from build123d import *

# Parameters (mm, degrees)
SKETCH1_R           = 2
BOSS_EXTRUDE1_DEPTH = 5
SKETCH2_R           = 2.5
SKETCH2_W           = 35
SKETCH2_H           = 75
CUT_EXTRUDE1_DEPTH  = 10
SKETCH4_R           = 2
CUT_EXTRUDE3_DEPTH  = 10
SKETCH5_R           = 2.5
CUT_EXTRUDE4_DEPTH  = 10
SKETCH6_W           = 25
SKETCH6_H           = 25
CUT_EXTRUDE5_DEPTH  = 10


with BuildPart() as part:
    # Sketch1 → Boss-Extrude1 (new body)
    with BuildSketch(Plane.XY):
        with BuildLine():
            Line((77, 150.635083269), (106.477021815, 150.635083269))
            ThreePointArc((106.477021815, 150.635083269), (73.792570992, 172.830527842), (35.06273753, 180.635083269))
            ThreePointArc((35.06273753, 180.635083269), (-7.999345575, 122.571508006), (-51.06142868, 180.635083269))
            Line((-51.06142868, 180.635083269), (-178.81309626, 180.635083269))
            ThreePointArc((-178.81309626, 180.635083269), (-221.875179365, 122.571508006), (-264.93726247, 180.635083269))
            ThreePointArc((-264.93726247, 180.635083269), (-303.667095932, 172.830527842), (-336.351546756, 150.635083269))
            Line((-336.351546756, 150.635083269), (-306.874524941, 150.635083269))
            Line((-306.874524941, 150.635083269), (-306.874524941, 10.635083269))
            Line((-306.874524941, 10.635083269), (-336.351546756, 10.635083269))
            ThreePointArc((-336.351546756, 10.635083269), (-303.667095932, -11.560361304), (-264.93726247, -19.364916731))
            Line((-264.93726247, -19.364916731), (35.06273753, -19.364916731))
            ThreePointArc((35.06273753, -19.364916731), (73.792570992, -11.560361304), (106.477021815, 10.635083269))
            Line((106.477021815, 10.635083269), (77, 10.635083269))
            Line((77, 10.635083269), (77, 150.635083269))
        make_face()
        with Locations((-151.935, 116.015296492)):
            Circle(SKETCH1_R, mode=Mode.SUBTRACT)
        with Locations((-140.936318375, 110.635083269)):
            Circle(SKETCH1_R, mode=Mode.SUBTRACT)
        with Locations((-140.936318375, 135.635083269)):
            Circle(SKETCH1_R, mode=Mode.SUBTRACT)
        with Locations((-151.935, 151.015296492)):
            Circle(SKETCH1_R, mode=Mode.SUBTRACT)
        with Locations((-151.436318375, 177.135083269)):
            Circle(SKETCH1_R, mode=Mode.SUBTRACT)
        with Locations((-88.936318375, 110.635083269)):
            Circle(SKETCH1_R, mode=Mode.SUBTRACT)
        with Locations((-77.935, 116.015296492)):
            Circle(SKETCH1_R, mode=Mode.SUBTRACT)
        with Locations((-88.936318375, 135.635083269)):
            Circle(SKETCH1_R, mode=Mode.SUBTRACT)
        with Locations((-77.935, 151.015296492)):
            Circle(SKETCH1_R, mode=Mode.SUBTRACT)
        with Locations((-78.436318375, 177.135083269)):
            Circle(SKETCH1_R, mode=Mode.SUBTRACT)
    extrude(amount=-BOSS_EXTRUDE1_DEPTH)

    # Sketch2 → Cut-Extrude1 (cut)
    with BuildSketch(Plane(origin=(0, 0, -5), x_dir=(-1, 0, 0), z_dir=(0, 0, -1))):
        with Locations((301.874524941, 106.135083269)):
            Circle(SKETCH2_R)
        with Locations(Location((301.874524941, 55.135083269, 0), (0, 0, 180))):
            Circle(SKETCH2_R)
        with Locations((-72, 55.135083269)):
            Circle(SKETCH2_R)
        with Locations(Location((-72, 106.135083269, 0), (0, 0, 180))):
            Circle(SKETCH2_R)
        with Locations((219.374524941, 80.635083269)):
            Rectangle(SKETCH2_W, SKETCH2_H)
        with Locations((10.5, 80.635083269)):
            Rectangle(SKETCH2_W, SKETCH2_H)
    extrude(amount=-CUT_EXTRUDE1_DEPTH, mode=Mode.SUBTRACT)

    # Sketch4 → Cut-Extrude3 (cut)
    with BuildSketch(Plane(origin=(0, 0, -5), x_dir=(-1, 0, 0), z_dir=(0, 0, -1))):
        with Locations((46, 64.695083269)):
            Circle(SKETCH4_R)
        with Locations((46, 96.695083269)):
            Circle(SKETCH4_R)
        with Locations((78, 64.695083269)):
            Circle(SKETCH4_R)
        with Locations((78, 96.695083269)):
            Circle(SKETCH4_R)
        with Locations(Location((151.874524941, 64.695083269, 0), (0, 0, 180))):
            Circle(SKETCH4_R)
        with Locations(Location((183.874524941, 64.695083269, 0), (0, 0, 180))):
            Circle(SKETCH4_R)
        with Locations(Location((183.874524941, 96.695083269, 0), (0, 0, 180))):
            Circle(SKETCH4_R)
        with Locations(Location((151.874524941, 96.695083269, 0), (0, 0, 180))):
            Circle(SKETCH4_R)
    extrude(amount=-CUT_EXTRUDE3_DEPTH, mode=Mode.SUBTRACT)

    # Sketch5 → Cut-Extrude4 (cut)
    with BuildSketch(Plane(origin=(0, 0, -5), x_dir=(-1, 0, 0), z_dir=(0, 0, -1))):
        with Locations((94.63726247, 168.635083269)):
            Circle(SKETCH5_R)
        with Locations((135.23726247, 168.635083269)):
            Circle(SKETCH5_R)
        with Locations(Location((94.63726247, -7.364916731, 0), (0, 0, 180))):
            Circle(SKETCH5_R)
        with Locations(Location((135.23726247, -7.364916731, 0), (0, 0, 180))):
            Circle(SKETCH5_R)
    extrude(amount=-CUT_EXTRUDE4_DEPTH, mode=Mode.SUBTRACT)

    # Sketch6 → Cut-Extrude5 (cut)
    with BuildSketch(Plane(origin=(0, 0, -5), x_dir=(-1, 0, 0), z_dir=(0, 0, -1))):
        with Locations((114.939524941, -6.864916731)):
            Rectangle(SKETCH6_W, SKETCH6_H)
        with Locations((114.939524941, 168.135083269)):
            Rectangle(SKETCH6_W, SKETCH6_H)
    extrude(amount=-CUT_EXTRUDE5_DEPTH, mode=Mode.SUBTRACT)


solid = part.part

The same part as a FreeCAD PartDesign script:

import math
import FreeCAD as App
import Part
import Sketcher
from FreeCAD import Vector

doc = App.newDocument("Part")
body = doc.addObject("PartDesign::Body", "Body")

# Sketch on XY plane
sketch1 = body.newObject("Sketcher::SketchObject", "Sketch")
sketch1.AttachmentSupport = (doc.getObject("XY_Plane"), [""])
sketch1.MapMode = "FlatFace"
sketch1.addGeometry(Part.LineSegment(Vector(77, 150.635083, 0), Vector(106.477022, 150.635083, 0)), False)
sketch1.addGeometry(Part.ArcOfCircle(Part.Circle(Vector(35.062738, 80.635083, 0), Vector(0, 0, 1), 100), math.radians(44.427004), math.radians(90)), False)
sketch1.addGeometry(Part.ArcOfCircle(Part.Circle(Vector(-7.999346, 167.571508, 0), Vector(0, 0, 1), 45), math.radians(163.123982), math.radians(376.876018)), False)
sketch1.addGeometry(Part.LineSegment(Vector(-51.061429, 180.635083, 0), Vector(-178.813096, 180.635083, 0)), False)
sketch1.addGeometry(Part.ArcOfCircle(Part.Circle(Vector(-221.875179, 167.571508, 0), Vector(0, 0, 1), 45), math.radians(163.123982), math.radians(376.876018)), False)
sketch1.addGeometry(Part.ArcOfCircle(Part.Circle(Vector(-264.937262, 80.635083, 0), Vector(0, 0, 1), 100), math.radians(90), math.radians(135.572996)), False)
sketch1.addGeometry(Part.LineSegment(Vector(-336.351547, 150.635083, 0), Vector(-306.874525, 150.635083, 0)), False)
sketch1.addGeometry(Part.LineSegment(Vector(-306.874525, 150.635083, 0), Vector(-306.874525, 10.635083, 0)), False)
sketch1.addGeometry(Part.LineSegment(Vector(-306.874525, 10.635083, 0), Vector(-336.351547, 10.635083, 0)), False)
sketch1.addGeometry(Part.ArcOfCircle(Part.Circle(Vector(-264.937262, 80.635083, 0), Vector(0, 0, 1), 100), math.radians(-135.572996), math.radians(-90)), False)
sketch1.addGeometry(Part.LineSegment(Vector(-264.937262, -19.364917, 0), Vector(35.062738, -19.364917, 0)), False)
sketch1.addGeometry(Part.ArcOfCircle(Part.Circle(Vector(35.062738, 80.635083, 0), Vector(0, 0, 1), 100), math.radians(-90), math.radians(-44.427004)), False)
sketch1.addGeometry(Part.LineSegment(Vector(106.477022, 10.635083, 0), Vector(77, 10.635083, 0)), False)
sketch1.addGeometry(Part.LineSegment(Vector(77, 10.635083, 0), Vector(77, 150.635083, 0)), False)
sketch1.addGeometry(Part.Circle(Vector(-151.935, 116.015296, 0), Vector(0, 0, 1), 2), False)
sketch1.addGeometry(Part.Circle(Vector(-140.936318, 110.635083, 0), Vector(0, 0, 1), 2), False)
sketch1.addGeometry(Part.Circle(Vector(-140.936318, 135.635083, 0), Vector(0, 0, 1), 2), False)
sketch1.addGeometry(Part.Circle(Vector(-88.936318, 110.635083, 0), Vector(0, 0, 1), 2), False)
sketch1.addGeometry(Part.Circle(Vector(-77.935, 116.015296, 0), Vector(0, 0, 1), 2), False)
sketch1.addGeometry(Part.Circle(Vector(-88.936318, 135.635083, 0), Vector(0, 0, 1), 2), False)
sketch1.addGeometry(Part.Circle(Vector(-151.935, 151.015296, 0), Vector(0, 0, 1), 2), False)
sketch1.addGeometry(Part.Circle(Vector(-151.436318, 177.135083, 0), Vector(0, 0, 1), 2), False)
sketch1.addGeometry(Part.Circle(Vector(-77.935, 151.015296, 0), Vector(0, 0, 1), 2), False)
sketch1.addGeometry(Part.Circle(Vector(-78.436318, 177.135083, 0), Vector(0, 0, 1), 2), False)
sketch1.addConstraint(Sketcher.Constraint("Coincident", 0, 2, 1, 1))
sketch1.addConstraint(Sketcher.Constraint("Coincident", 1, 2, 2, 2))
sketch1.addConstraint(Sketcher.Constraint("Coincident", 2, 1, 3, 1))
sketch1.addConstraint(Sketcher.Constraint("Coincident", 3, 2, 4, 2))
sketch1.addConstraint(Sketcher.Constraint("Coincident", 4, 1, 5, 1))
sketch1.addConstraint(Sketcher.Constraint("Coincident", 5, 2, 6, 1))
sketch1.addConstraint(Sketcher.Constraint("Coincident", 6, 2, 7, 1))
sketch1.addConstraint(Sketcher.Constraint("Coincident", 7, 2, 8, 1))
sketch1.addConstraint(Sketcher.Constraint("Coincident", 8, 2, 9, 1))
sketch1.addConstraint(Sketcher.Constraint("Tangent", 9, 2, 10, 1))
sketch1.addConstraint(Sketcher.Constraint("Tangent", 10, 2, 11, 1))
sketch1.addConstraint(Sketcher.Constraint("Coincident", 11, 2, 12, 1))
sketch1.addConstraint(Sketcher.Constraint("Coincident", 12, 2, 13, 1))
sketch1.addConstraint(Sketcher.Constraint("Coincident", 13, 2, 0, 1))
sketch1.addConstraint(Sketcher.Constraint("Horizontal", 0))
sketch1.addConstraint(Sketcher.Constraint("Horizontal", 3))
sketch1.addConstraint(Sketcher.Constraint("Horizontal", 6))
sketch1.addConstraint(Sketcher.Constraint("Vertical", 7))
sketch1.addConstraint(Sketcher.Constraint("Horizontal", 8))
sketch1.addConstraint(Sketcher.Constraint("Horizontal", 10))
sketch1.addConstraint(Sketcher.Constraint("Horizontal", 12))
sketch1.addConstraint(Sketcher.Constraint("Vertical", 13))
sketch1.addConstraint(Sketcher.Constraint("Coincident", 9, 3, 5, 3))
sketch1.addConstraint(Sketcher.Constraint("Coincident", 11, 3, 1, 3))
sketch1.addConstraint(Sketcher.Constraint("Equal", 2, 4))
sketch1.addConstraint(Sketcher.Constraint("Equal", 1, 5))
sketch1.addConstraint(Sketcher.Constraint("Equal", 5, 9))
sketch1.addConstraint(Sketcher.Constraint("Equal", 9, 11))
sketch1.addConstraint(Sketcher.Constraint("Equal", 14, 15))
sketch1.addConstraint(Sketcher.Constraint("Equal", 15, 16))
sketch1.addConstraint(Sketcher.Constraint("Equal", 16, 17))
sketch1.addConstraint(Sketcher.Constraint("Equal", 17, 18))
sketch1.addConstraint(Sketcher.Constraint("Equal", 18, 19))
sketch1.addConstraint(Sketcher.Constraint("Equal", 19, 20))
sketch1.addConstraint(Sketcher.Constraint("Equal", 20, 21))
sketch1.addConstraint(Sketcher.Constraint("Equal", 21, 22))
sketch1.addConstraint(Sketcher.Constraint("Equal", 22, 23))
sketch1.addConstraint(Sketcher.Constraint("Horizontal", 2, 3, 4, 3))
sketch1.addConstraint(Sketcher.Constraint("Horizontal", 15, 3, 17, 3))
sketch1.addConstraint(Sketcher.Constraint("Horizontal", 14, 3, 18, 3))
sketch1.addConstraint(Sketcher.Constraint("Horizontal", 16, 3, 19, 3))
sketch1.addConstraint(Sketcher.Constraint("Horizontal", 20, 3, 22, 3))
sketch1.addConstraint(Sketcher.Constraint("Horizontal", 21, 3, 23, 3))
sketch1.addConstraint(Sketcher.Constraint("Horizontal", 1, 2, 2, 1))
sketch1.addConstraint(Sketcher.Constraint("Horizontal", 0, 2, 5, 2))
sketch1.addConstraint(Sketcher.Constraint("Horizontal", 8, 2, 11, 2))
sketch1.addConstraint(Sketcher.Constraint("Vertical", 15, 3, 16, 3))
sketch1.addConstraint(Sketcher.Constraint("Vertical", 17, 3, 19, 3))
sketch1.addConstraint(Sketcher.Constraint("Vertical", 14, 3, 20, 3))
sketch1.addConstraint(Sketcher.Constraint("Vertical", 18, 3, 22, 3))
sketch1.addConstraint(Sketcher.Constraint("Vertical", 11, 3, 1, 2))
sketch1.addConstraint(Sketcher.Constraint("Vertical", 9, 3, 4, 1))
sketch1.addConstraint(Sketcher.Constraint("Vertical", 5, 2, 8, 2))
sketch1.addConstraint(Sketcher.Constraint("Equal", 0, 6))
sketch1.addConstraint(Sketcher.Constraint("Diameter", 14, 4.0))
sketch1.addConstraint(Sketcher.Constraint("Radius", 1, 100.0))
sketch1.addConstraint(Sketcher.Constraint("Radius", 2, 45.0))
sketch1.addConstraint(Sketcher.Constraint("DistanceX", 10, 1, 10, 2, 300.0))
sketch1.addConstraint(Sketcher.Constraint("DistanceY", 7, 2, 7, 1, 140.0))
sketch1.addConstraint(Sketcher.Constraint("DistanceX", -1, 1, 12, 2, 77.0))
sketch1.addConstraint(Sketcher.Constraint("DistanceY", 9, 3, 15, 3, 30.0))
sketch1.addConstraint(Sketcher.Constraint("DistanceY", 15, 3, 16, 3, 25.0))
sketch1.addConstraint(Sketcher.Constraint("DistanceX", 15, 3, 17, 3, 52.0))
sketch1.addConstraint(Sketcher.Constraint("DistanceX", 14, 3, 18, 3, 74.0))
sketch1.addConstraint(Sketcher.Constraint("DistanceY", 14, 3, 20, 3, 35.0))
sketch1.addConstraint(Sketcher.Constraint("DistanceX", 21, 3, 16, 3, 10.5))
sketch1.addConstraint(Sketcher.Constraint("DistanceY", 16, 3, 21, 3, 41.5))
sketch1.addConstraint(Sketcher.Constraint("DistanceX", 19, 3, 23, 3, 10.5))
sketch1.addConstraint(Sketcher.Constraint("DistanceX", 14, 3, -1, 1, 151.935))
sketch1.addConstraint(Sketcher.Constraint("DistanceX", 0, 1, 0, 2, 29.477022))
sketch1.addConstraint(Sketcher.Constraint("DistanceX", 3, 2, 3, 1, 127.751668))
sketch1.addConstraint(Sketcher.Constraint("DistanceY", -1, 1, 2, 3, 167.571508))
sketch1.addConstraint(Sketcher.Constraint("DistanceX", 15, 3, -1, 1, 140.936318))
sketch1.addConstraint(Sketcher.Constraint("DistanceY", 14, 3, 4, 3, 51.556212))
pad1 = body.newObject("PartDesign::Pad", "Pad")
pad1.Profile = sketch1
pad1.Length = 5
pad1.Reversed = True

# Sketch on XY plane
sketch2 = body.newObject("Sketcher::SketchObject", "Sketch001")
sketch2.AttachmentSupport = (doc.getObject("XY_Plane"), [""])
sketch2.MapMode = "FlatFace"
sketch2.AttachmentOffset = App.Placement(Vector(0, 0, -5), App.Rotation())
sketch2.addGeometry(Part.Circle(Vector(-301.874525, 106.135083, 0), Vector(0, 0, 1), 2.5), False)
sketch2.addGeometry(Part.Circle(Vector(-301.874525, 55.135083, 0), Vector(0, 0, 1), 2.5), False)
sketch2.addGeometry(Part.Circle(Vector(72, 55.135083, 0), Vector(0, 0, 1), 2.5), False)
sketch2.addGeometry(Part.Circle(Vector(72, 106.135083, 0), Vector(0, 0, 1), 2.5), False)
sketch2.addGeometry(Part.LineSegment(Vector(-201.874525, 118.135083, 0), Vector(-201.874525, 43.135083, 0)), False)
sketch2.addGeometry(Part.LineSegment(Vector(-201.874525, 43.135083, 0), Vector(-236.874525, 43.135083, 0)), False)
sketch2.addGeometry(Part.LineSegment(Vector(-236.874525, 43.135083, 0), Vector(-236.874525, 118.135083, 0)), False)
sketch2.addGeometry(Part.LineSegment(Vector(-236.874525, 118.135083, 0), Vector(-201.874525, 118.135083, 0)), False)
sketch2.addGeometry(Part.LineSegment(Vector(7, 118.135083, 0), Vector(7, 43.135083, 0)), False)
sketch2.addGeometry(Part.LineSegment(Vector(7, 43.135083, 0), Vector(-28, 43.135083, 0)), False)
sketch2.addGeometry(Part.LineSegment(Vector(-28, 43.135083, 0), Vector(-28, 118.135083, 0)), False)
sketch2.addGeometry(Part.LineSegment(Vector(-28, 118.135083, 0), Vector(7, 118.135083, 0)), False)
sketch2.addConstraint(Sketcher.Constraint("Coincident", 4, 2, 5, 1))
sketch2.addConstraint(Sketcher.Constraint("Coincident", 5, 2, 6, 1))
sketch2.addConstraint(Sketcher.Constraint("Coincident", 6, 2, 7, 1))
sketch2.addConstraint(Sketcher.Constraint("Coincident", 7, 2, 4, 1))
sketch2.addConstraint(Sketcher.Constraint("Coincident", 8, 2, 9, 1))
sketch2.addConstraint(Sketcher.Constraint("Coincident", 9, 2, 10, 1))
sketch2.addConstraint(Sketcher.Constraint("Coincident", 10, 2, 11, 1))
sketch2.addConstraint(Sketcher.Constraint("Coincident", 11, 2, 8, 1))
sketch2.addConstraint(Sketcher.Constraint("Vertical", 4))
sketch2.addConstraint(Sketcher.Constraint("Horizontal", 5))
sketch2.addConstraint(Sketcher.Constraint("Vertical", 6))
sketch2.addConstraint(Sketcher.Constraint("Horizontal", 7))
sketch2.addConstraint(Sketcher.Constraint("Vertical", 8))
sketch2.addConstraint(Sketcher.Constraint("Horizontal", 9))
sketch2.addConstraint(Sketcher.Constraint("Vertical", 10))
sketch2.addConstraint(Sketcher.Constraint("Horizontal", 11))
sketch2.addConstraint(Sketcher.Constraint("Equal", 0, 1))
sketch2.addConstraint(Sketcher.Constraint("Equal", 1, 2))
sketch2.addConstraint(Sketcher.Constraint("Equal", 2, 3))
sketch2.addConstraint(Sketcher.Constraint("Horizontal", 1, 3, 2, 3))
sketch2.addConstraint(Sketcher.Constraint("Horizontal", 0, 3, 3, 3))
sketch2.addConstraint(Sketcher.Constraint("Horizontal", 5, 2, 8, 2))
sketch2.addConstraint(Sketcher.Constraint("Horizontal", 7, 2, 10, 2))
sketch2.addConstraint(Sketcher.Constraint("Vertical", 0, 3, 1, 3))
sketch2.addConstraint(Sketcher.Constraint("Vertical", 2, 3, 3, 3))
sketch2.addConstraint(Sketcher.Constraint("Equal", 7, 9))
sketch2.addConstraint(Sketcher.Constraint("Diameter", 0, 5.0))
sketch2.addConstraint(Sketcher.Constraint("DistanceX", 5, 2, 5, 1, 35.0))
sketch2.addConstraint(Sketcher.Constraint("DistanceY", 4, 2, 4, 1, 75.0))
sketch2.addConstraint(Sketcher.Constraint("DistanceX", -1, 1, 2, 3, 72.0))
sketch2.addConstraint(Sketcher.Constraint("DistanceX", -1, 1, 8, 2, 7.0))
sketch2.addConstraint(Sketcher.Constraint("DistanceY", 1, 3, 0, 3, 51.0))
sketch2.addConstraint(Sketcher.Constraint("DistanceX", 1, 3, 4, 2, 100.0))
sketch2.addConstraint(Sketcher.Constraint("DistanceY", 4, 2, 1, 3, 12.0))
sketch2.addConstraint(Sketcher.Constraint("DistanceX", 0, 3, -1, 1, 301.874525))
sketch2.addConstraint(Sketcher.Constraint("DistanceY", -1, 1, 0, 3, 106.135083))
pocket1 = body.newObject("PartDesign::Pocket", "Pocket")
pocket1.Profile = sketch2
pocket1.Length = 10
pocket1.Reversed = True

# Sketch on XY plane
sketch3 = body.newObject("Sketcher::SketchObject", "Sketch002")
sketch3.AttachmentSupport = (doc.getObject("XY_Plane"), [""])
sketch3.MapMode = "FlatFace"
sketch3.AttachmentOffset = App.Placement(Vector(0, 0, -5), App.Rotation())
sketch3.addGeometry(Part.Circle(Vector(-46, 64.695083, 0), Vector(0, 0, 1), 2), False)
sketch3.addGeometry(Part.Circle(Vector(-46, 96.695083, 0), Vector(0, 0, 1), 2), False)
sketch3.addGeometry(Part.Circle(Vector(-78, 64.695083, 0), Vector(0, 0, 1), 2), False)
sketch3.addGeometry(Part.Circle(Vector(-78, 96.695083, 0), Vector(0, 0, 1), 2), False)
sketch3.addGeometry(Part.Circle(Vector(-151.874525, 64.695083, 0), Vector(0, 0, 1), 2), False)
sketch3.addGeometry(Part.Circle(Vector(-183.874525, 64.695083, 0), Vector(0, 0, 1), 2), False)
sketch3.addGeometry(Part.Circle(Vector(-183.874525, 96.695083, 0), Vector(0, 0, 1), 2), False)
sketch3.addGeometry(Part.Circle(Vector(-151.874525, 96.695083, 0), Vector(0, 0, 1), 2), False)
sketch3.addConstraint(Sketcher.Constraint("Equal", 0, 1))
sketch3.addConstraint(Sketcher.Constraint("Equal", 1, 2))
sketch3.addConstraint(Sketcher.Constraint("Equal", 2, 3))
sketch3.addConstraint(Sketcher.Constraint("Equal", 3, 4))
sketch3.addConstraint(Sketcher.Constraint("Equal", 4, 5))
sketch3.addConstraint(Sketcher.Constraint("Equal", 5, 6))
sketch3.addConstraint(Sketcher.Constraint("Equal", 6, 7))
sketch3.addConstraint(Sketcher.Constraint("Horizontal", 0, 3, 2, 3))
sketch3.addConstraint(Sketcher.Constraint("Horizontal", 1, 3, 3, 3))
sketch3.addConstraint(Sketcher.Constraint("Horizontal", 2, 3, 4, 3))
sketch3.addConstraint(Sketcher.Constraint("Horizontal", 4, 3, 5, 3))
sketch3.addConstraint(Sketcher.Constraint("Horizontal", 3, 3, 6, 3))
sketch3.addConstraint(Sketcher.Constraint("Horizontal", 6, 3, 7, 3))
sketch3.addConstraint(Sketcher.Constraint("Vertical", 0, 3, 1, 3))
sketch3.addConstraint(Sketcher.Constraint("Vertical", 2, 3, 3, 3))
sketch3.addConstraint(Sketcher.Constraint("Vertical", 5, 3, 6, 3))
sketch3.addConstraint(Sketcher.Constraint("Vertical", 4, 3, 7, 3))
sketch3.addConstraint(Sketcher.Constraint("Diameter", 0, 4.0))
sketch3.addConstraint(Sketcher.Constraint("DistanceX", 0, 3, -1, 1, 46.0))
sketch3.addConstraint(Sketcher.Constraint("DistanceX", 2, 3, -1, 1, 78.0))
sketch3.addConstraint(Sketcher.Constraint("DistanceY", 0, 3, 1, 3, 32.0))
sketch3.addConstraint(Sketcher.Constraint("DistanceX", 5, 3, 4, 3, 32.0))
sketch3.addConstraint(Sketcher.Constraint("DistanceY", -1, 1, 0, 3, 64.695083))
sketch3.addConstraint(Sketcher.Constraint("DistanceX", 4, 3, -1, 1, 151.874525))
pocket2 = body.newObject("PartDesign::Pocket", "Pocket001")
pocket2.Profile = sketch3
pocket2.Length = 10
pocket2.Reversed = True

# Sketch on XY plane
sketch4 = body.newObject("Sketcher::SketchObject", "Sketch003")
sketch4.AttachmentSupport = (doc.getObject("XY_Plane"), [""])
sketch4.MapMode = "FlatFace"
sketch4.AttachmentOffset = App.Placement(Vector(0, 0, -5), App.Rotation())
sketch4.addGeometry(Part.Circle(Vector(-94.637262, 168.635083, 0), Vector(0, 0, 1), 2.5), False)
sketch4.addGeometry(Part.Circle(Vector(-135.237262, 168.635083, 0), Vector(0, 0, 1), 2.5), False)
sketch4.addGeometry(Part.Circle(Vector(-94.637262, -7.364917, 0), Vector(0, 0, 1), 2.5), False)
sketch4.addGeometry(Part.Circle(Vector(-135.237262, -7.364917, 0), Vector(0, 0, 1), 2.5), False)
sketch4.addConstraint(Sketcher.Constraint("Equal", 0, 1))
sketch4.addConstraint(Sketcher.Constraint("Equal", 1, 2))
sketch4.addConstraint(Sketcher.Constraint("Equal", 2, 3))
sketch4.addConstraint(Sketcher.Constraint("Horizontal", 0, 3, 1, 3))
sketch4.addConstraint(Sketcher.Constraint("Horizontal", 2, 3, 3, 3))
sketch4.addConstraint(Sketcher.Constraint("Vertical", 0, 3, 2, 3))
sketch4.addConstraint(Sketcher.Constraint("Vertical", 1, 3, 3, 3))
sketch4.addConstraint(Sketcher.Constraint("Diameter", 0, 5.0))
sketch4.addConstraint(Sketcher.Constraint("DistanceY", 2, 3, 0, 3, 176.0))
sketch4.addConstraint(Sketcher.Constraint("DistanceX", 1, 3, 0, 3, 40.6))
sketch4.addConstraint(Sketcher.Constraint("DistanceX", 0, 3, -1, 1, 94.637262))
sketch4.addConstraint(Sketcher.Constraint("DistanceY", -1, 1, 0, 3, 168.635083))
pocket3 = body.newObject("PartDesign::Pocket", "Pocket002")
pocket3.Profile = sketch4
pocket3.Length = 10
pocket3.Reversed = True

# Sketch on XY plane
sketch5 = body.newObject("Sketcher::SketchObject", "Sketch004")
sketch5.AttachmentSupport = (doc.getObject("XY_Plane"), [""])
sketch5.MapMode = "FlatFace"
sketch5.AttachmentOffset = App.Placement(Vector(0, 0, -5), App.Rotation())
sketch5.addGeometry(Part.LineSegment(Vector(-102.439525, 5.635083, 0), Vector(-102.439525, -19.364917, 0)), False)
sketch5.addGeometry(Part.LineSegment(Vector(-102.439525, -19.364917, 0), Vector(-127.439525, -19.364917, 0)), False)
sketch5.addGeometry(Part.LineSegment(Vector(-127.439525, -19.364917, 0), Vector(-127.439525, 5.635083, 0)), False)
sketch5.addGeometry(Part.LineSegment(Vector(-127.439525, 5.635083, 0), Vector(-102.439525, 5.635083, 0)), False)
sketch5.addGeometry(Part.LineSegment(Vector(-102.439525, 180.635083, 0), Vector(-102.439525, 155.635083, 0)), False)
sketch5.addGeometry(Part.LineSegment(Vector(-102.439525, 155.635083, 0), Vector(-127.439525, 155.635083, 0)), False)
sketch5.addGeometry(Part.LineSegment(Vector(-127.439525, 155.635083, 0), Vector(-127.439525, 180.635083, 0)), False)
sketch5.addGeometry(Part.LineSegment(Vector(-127.439525, 180.635083, 0), Vector(-102.439525, 180.635083, 0)), False)
sketch5.addConstraint(Sketcher.Constraint("Coincident", 0, 2, 1, 1))
sketch5.addConstraint(Sketcher.Constraint("Coincident", 1, 2, 2, 1))
sketch5.addConstraint(Sketcher.Constraint("Coincident", 2, 2, 3, 1))
sketch5.addConstraint(Sketcher.Constraint("Coincident", 3, 2, 0, 1))
sketch5.addConstraint(Sketcher.Constraint("Coincident", 4, 2, 5, 1))
sketch5.addConstraint(Sketcher.Constraint("Coincident", 5, 2, 6, 1))
sketch5.addConstraint(Sketcher.Constraint("Coincident", 6, 2, 7, 1))
sketch5.addConstraint(Sketcher.Constraint("Coincident", 7, 2, 4, 1))
sketch5.addConstraint(Sketcher.Constraint("Vertical", 0))
sketch5.addConstraint(Sketcher.Constraint("Horizontal", 1))
sketch5.addConstraint(Sketcher.Constraint("Vertical", 2))
sketch5.addConstraint(Sketcher.Constraint("Horizontal", 3))
sketch5.addConstraint(Sketcher.Constraint("Vertical", 4))
sketch5.addConstraint(Sketcher.Constraint("Horizontal", 5))
sketch5.addConstraint(Sketcher.Constraint("Vertical", 6))
sketch5.addConstraint(Sketcher.Constraint("Horizontal", 7))
sketch5.addConstraint(Sketcher.Constraint("Vertical", 3, 2, 4, 2))
sketch5.addConstraint(Sketcher.Constraint("Vertical", 2, 2, 5, 2))
sketch5.addConstraint(Sketcher.Constraint("Equal", 7, 0))
sketch5.addConstraint(Sketcher.Constraint("Equal", 2, 4))
sketch5.addConstraint(Sketcher.Constraint("DistanceX", 1, 2, 1, 1, 25.0))
sketch5.addConstraint(Sketcher.Constraint("DistanceY", 3, 2, 4, 2, 150.0))
sketch5.addConstraint(Sketcher.Constraint("DistanceX", 0, 2, -1, 1, 102.439525))
sketch5.addConstraint(Sketcher.Constraint("DistanceY", 0, 2, -1, 1, 19.364917))
pocket4 = body.newObject("PartDesign::Pocket", "Pocket003")
pocket4.Profile = sketch5
pocket4.Length = 10
pocket4.Reversed = True

doc.recompute()
